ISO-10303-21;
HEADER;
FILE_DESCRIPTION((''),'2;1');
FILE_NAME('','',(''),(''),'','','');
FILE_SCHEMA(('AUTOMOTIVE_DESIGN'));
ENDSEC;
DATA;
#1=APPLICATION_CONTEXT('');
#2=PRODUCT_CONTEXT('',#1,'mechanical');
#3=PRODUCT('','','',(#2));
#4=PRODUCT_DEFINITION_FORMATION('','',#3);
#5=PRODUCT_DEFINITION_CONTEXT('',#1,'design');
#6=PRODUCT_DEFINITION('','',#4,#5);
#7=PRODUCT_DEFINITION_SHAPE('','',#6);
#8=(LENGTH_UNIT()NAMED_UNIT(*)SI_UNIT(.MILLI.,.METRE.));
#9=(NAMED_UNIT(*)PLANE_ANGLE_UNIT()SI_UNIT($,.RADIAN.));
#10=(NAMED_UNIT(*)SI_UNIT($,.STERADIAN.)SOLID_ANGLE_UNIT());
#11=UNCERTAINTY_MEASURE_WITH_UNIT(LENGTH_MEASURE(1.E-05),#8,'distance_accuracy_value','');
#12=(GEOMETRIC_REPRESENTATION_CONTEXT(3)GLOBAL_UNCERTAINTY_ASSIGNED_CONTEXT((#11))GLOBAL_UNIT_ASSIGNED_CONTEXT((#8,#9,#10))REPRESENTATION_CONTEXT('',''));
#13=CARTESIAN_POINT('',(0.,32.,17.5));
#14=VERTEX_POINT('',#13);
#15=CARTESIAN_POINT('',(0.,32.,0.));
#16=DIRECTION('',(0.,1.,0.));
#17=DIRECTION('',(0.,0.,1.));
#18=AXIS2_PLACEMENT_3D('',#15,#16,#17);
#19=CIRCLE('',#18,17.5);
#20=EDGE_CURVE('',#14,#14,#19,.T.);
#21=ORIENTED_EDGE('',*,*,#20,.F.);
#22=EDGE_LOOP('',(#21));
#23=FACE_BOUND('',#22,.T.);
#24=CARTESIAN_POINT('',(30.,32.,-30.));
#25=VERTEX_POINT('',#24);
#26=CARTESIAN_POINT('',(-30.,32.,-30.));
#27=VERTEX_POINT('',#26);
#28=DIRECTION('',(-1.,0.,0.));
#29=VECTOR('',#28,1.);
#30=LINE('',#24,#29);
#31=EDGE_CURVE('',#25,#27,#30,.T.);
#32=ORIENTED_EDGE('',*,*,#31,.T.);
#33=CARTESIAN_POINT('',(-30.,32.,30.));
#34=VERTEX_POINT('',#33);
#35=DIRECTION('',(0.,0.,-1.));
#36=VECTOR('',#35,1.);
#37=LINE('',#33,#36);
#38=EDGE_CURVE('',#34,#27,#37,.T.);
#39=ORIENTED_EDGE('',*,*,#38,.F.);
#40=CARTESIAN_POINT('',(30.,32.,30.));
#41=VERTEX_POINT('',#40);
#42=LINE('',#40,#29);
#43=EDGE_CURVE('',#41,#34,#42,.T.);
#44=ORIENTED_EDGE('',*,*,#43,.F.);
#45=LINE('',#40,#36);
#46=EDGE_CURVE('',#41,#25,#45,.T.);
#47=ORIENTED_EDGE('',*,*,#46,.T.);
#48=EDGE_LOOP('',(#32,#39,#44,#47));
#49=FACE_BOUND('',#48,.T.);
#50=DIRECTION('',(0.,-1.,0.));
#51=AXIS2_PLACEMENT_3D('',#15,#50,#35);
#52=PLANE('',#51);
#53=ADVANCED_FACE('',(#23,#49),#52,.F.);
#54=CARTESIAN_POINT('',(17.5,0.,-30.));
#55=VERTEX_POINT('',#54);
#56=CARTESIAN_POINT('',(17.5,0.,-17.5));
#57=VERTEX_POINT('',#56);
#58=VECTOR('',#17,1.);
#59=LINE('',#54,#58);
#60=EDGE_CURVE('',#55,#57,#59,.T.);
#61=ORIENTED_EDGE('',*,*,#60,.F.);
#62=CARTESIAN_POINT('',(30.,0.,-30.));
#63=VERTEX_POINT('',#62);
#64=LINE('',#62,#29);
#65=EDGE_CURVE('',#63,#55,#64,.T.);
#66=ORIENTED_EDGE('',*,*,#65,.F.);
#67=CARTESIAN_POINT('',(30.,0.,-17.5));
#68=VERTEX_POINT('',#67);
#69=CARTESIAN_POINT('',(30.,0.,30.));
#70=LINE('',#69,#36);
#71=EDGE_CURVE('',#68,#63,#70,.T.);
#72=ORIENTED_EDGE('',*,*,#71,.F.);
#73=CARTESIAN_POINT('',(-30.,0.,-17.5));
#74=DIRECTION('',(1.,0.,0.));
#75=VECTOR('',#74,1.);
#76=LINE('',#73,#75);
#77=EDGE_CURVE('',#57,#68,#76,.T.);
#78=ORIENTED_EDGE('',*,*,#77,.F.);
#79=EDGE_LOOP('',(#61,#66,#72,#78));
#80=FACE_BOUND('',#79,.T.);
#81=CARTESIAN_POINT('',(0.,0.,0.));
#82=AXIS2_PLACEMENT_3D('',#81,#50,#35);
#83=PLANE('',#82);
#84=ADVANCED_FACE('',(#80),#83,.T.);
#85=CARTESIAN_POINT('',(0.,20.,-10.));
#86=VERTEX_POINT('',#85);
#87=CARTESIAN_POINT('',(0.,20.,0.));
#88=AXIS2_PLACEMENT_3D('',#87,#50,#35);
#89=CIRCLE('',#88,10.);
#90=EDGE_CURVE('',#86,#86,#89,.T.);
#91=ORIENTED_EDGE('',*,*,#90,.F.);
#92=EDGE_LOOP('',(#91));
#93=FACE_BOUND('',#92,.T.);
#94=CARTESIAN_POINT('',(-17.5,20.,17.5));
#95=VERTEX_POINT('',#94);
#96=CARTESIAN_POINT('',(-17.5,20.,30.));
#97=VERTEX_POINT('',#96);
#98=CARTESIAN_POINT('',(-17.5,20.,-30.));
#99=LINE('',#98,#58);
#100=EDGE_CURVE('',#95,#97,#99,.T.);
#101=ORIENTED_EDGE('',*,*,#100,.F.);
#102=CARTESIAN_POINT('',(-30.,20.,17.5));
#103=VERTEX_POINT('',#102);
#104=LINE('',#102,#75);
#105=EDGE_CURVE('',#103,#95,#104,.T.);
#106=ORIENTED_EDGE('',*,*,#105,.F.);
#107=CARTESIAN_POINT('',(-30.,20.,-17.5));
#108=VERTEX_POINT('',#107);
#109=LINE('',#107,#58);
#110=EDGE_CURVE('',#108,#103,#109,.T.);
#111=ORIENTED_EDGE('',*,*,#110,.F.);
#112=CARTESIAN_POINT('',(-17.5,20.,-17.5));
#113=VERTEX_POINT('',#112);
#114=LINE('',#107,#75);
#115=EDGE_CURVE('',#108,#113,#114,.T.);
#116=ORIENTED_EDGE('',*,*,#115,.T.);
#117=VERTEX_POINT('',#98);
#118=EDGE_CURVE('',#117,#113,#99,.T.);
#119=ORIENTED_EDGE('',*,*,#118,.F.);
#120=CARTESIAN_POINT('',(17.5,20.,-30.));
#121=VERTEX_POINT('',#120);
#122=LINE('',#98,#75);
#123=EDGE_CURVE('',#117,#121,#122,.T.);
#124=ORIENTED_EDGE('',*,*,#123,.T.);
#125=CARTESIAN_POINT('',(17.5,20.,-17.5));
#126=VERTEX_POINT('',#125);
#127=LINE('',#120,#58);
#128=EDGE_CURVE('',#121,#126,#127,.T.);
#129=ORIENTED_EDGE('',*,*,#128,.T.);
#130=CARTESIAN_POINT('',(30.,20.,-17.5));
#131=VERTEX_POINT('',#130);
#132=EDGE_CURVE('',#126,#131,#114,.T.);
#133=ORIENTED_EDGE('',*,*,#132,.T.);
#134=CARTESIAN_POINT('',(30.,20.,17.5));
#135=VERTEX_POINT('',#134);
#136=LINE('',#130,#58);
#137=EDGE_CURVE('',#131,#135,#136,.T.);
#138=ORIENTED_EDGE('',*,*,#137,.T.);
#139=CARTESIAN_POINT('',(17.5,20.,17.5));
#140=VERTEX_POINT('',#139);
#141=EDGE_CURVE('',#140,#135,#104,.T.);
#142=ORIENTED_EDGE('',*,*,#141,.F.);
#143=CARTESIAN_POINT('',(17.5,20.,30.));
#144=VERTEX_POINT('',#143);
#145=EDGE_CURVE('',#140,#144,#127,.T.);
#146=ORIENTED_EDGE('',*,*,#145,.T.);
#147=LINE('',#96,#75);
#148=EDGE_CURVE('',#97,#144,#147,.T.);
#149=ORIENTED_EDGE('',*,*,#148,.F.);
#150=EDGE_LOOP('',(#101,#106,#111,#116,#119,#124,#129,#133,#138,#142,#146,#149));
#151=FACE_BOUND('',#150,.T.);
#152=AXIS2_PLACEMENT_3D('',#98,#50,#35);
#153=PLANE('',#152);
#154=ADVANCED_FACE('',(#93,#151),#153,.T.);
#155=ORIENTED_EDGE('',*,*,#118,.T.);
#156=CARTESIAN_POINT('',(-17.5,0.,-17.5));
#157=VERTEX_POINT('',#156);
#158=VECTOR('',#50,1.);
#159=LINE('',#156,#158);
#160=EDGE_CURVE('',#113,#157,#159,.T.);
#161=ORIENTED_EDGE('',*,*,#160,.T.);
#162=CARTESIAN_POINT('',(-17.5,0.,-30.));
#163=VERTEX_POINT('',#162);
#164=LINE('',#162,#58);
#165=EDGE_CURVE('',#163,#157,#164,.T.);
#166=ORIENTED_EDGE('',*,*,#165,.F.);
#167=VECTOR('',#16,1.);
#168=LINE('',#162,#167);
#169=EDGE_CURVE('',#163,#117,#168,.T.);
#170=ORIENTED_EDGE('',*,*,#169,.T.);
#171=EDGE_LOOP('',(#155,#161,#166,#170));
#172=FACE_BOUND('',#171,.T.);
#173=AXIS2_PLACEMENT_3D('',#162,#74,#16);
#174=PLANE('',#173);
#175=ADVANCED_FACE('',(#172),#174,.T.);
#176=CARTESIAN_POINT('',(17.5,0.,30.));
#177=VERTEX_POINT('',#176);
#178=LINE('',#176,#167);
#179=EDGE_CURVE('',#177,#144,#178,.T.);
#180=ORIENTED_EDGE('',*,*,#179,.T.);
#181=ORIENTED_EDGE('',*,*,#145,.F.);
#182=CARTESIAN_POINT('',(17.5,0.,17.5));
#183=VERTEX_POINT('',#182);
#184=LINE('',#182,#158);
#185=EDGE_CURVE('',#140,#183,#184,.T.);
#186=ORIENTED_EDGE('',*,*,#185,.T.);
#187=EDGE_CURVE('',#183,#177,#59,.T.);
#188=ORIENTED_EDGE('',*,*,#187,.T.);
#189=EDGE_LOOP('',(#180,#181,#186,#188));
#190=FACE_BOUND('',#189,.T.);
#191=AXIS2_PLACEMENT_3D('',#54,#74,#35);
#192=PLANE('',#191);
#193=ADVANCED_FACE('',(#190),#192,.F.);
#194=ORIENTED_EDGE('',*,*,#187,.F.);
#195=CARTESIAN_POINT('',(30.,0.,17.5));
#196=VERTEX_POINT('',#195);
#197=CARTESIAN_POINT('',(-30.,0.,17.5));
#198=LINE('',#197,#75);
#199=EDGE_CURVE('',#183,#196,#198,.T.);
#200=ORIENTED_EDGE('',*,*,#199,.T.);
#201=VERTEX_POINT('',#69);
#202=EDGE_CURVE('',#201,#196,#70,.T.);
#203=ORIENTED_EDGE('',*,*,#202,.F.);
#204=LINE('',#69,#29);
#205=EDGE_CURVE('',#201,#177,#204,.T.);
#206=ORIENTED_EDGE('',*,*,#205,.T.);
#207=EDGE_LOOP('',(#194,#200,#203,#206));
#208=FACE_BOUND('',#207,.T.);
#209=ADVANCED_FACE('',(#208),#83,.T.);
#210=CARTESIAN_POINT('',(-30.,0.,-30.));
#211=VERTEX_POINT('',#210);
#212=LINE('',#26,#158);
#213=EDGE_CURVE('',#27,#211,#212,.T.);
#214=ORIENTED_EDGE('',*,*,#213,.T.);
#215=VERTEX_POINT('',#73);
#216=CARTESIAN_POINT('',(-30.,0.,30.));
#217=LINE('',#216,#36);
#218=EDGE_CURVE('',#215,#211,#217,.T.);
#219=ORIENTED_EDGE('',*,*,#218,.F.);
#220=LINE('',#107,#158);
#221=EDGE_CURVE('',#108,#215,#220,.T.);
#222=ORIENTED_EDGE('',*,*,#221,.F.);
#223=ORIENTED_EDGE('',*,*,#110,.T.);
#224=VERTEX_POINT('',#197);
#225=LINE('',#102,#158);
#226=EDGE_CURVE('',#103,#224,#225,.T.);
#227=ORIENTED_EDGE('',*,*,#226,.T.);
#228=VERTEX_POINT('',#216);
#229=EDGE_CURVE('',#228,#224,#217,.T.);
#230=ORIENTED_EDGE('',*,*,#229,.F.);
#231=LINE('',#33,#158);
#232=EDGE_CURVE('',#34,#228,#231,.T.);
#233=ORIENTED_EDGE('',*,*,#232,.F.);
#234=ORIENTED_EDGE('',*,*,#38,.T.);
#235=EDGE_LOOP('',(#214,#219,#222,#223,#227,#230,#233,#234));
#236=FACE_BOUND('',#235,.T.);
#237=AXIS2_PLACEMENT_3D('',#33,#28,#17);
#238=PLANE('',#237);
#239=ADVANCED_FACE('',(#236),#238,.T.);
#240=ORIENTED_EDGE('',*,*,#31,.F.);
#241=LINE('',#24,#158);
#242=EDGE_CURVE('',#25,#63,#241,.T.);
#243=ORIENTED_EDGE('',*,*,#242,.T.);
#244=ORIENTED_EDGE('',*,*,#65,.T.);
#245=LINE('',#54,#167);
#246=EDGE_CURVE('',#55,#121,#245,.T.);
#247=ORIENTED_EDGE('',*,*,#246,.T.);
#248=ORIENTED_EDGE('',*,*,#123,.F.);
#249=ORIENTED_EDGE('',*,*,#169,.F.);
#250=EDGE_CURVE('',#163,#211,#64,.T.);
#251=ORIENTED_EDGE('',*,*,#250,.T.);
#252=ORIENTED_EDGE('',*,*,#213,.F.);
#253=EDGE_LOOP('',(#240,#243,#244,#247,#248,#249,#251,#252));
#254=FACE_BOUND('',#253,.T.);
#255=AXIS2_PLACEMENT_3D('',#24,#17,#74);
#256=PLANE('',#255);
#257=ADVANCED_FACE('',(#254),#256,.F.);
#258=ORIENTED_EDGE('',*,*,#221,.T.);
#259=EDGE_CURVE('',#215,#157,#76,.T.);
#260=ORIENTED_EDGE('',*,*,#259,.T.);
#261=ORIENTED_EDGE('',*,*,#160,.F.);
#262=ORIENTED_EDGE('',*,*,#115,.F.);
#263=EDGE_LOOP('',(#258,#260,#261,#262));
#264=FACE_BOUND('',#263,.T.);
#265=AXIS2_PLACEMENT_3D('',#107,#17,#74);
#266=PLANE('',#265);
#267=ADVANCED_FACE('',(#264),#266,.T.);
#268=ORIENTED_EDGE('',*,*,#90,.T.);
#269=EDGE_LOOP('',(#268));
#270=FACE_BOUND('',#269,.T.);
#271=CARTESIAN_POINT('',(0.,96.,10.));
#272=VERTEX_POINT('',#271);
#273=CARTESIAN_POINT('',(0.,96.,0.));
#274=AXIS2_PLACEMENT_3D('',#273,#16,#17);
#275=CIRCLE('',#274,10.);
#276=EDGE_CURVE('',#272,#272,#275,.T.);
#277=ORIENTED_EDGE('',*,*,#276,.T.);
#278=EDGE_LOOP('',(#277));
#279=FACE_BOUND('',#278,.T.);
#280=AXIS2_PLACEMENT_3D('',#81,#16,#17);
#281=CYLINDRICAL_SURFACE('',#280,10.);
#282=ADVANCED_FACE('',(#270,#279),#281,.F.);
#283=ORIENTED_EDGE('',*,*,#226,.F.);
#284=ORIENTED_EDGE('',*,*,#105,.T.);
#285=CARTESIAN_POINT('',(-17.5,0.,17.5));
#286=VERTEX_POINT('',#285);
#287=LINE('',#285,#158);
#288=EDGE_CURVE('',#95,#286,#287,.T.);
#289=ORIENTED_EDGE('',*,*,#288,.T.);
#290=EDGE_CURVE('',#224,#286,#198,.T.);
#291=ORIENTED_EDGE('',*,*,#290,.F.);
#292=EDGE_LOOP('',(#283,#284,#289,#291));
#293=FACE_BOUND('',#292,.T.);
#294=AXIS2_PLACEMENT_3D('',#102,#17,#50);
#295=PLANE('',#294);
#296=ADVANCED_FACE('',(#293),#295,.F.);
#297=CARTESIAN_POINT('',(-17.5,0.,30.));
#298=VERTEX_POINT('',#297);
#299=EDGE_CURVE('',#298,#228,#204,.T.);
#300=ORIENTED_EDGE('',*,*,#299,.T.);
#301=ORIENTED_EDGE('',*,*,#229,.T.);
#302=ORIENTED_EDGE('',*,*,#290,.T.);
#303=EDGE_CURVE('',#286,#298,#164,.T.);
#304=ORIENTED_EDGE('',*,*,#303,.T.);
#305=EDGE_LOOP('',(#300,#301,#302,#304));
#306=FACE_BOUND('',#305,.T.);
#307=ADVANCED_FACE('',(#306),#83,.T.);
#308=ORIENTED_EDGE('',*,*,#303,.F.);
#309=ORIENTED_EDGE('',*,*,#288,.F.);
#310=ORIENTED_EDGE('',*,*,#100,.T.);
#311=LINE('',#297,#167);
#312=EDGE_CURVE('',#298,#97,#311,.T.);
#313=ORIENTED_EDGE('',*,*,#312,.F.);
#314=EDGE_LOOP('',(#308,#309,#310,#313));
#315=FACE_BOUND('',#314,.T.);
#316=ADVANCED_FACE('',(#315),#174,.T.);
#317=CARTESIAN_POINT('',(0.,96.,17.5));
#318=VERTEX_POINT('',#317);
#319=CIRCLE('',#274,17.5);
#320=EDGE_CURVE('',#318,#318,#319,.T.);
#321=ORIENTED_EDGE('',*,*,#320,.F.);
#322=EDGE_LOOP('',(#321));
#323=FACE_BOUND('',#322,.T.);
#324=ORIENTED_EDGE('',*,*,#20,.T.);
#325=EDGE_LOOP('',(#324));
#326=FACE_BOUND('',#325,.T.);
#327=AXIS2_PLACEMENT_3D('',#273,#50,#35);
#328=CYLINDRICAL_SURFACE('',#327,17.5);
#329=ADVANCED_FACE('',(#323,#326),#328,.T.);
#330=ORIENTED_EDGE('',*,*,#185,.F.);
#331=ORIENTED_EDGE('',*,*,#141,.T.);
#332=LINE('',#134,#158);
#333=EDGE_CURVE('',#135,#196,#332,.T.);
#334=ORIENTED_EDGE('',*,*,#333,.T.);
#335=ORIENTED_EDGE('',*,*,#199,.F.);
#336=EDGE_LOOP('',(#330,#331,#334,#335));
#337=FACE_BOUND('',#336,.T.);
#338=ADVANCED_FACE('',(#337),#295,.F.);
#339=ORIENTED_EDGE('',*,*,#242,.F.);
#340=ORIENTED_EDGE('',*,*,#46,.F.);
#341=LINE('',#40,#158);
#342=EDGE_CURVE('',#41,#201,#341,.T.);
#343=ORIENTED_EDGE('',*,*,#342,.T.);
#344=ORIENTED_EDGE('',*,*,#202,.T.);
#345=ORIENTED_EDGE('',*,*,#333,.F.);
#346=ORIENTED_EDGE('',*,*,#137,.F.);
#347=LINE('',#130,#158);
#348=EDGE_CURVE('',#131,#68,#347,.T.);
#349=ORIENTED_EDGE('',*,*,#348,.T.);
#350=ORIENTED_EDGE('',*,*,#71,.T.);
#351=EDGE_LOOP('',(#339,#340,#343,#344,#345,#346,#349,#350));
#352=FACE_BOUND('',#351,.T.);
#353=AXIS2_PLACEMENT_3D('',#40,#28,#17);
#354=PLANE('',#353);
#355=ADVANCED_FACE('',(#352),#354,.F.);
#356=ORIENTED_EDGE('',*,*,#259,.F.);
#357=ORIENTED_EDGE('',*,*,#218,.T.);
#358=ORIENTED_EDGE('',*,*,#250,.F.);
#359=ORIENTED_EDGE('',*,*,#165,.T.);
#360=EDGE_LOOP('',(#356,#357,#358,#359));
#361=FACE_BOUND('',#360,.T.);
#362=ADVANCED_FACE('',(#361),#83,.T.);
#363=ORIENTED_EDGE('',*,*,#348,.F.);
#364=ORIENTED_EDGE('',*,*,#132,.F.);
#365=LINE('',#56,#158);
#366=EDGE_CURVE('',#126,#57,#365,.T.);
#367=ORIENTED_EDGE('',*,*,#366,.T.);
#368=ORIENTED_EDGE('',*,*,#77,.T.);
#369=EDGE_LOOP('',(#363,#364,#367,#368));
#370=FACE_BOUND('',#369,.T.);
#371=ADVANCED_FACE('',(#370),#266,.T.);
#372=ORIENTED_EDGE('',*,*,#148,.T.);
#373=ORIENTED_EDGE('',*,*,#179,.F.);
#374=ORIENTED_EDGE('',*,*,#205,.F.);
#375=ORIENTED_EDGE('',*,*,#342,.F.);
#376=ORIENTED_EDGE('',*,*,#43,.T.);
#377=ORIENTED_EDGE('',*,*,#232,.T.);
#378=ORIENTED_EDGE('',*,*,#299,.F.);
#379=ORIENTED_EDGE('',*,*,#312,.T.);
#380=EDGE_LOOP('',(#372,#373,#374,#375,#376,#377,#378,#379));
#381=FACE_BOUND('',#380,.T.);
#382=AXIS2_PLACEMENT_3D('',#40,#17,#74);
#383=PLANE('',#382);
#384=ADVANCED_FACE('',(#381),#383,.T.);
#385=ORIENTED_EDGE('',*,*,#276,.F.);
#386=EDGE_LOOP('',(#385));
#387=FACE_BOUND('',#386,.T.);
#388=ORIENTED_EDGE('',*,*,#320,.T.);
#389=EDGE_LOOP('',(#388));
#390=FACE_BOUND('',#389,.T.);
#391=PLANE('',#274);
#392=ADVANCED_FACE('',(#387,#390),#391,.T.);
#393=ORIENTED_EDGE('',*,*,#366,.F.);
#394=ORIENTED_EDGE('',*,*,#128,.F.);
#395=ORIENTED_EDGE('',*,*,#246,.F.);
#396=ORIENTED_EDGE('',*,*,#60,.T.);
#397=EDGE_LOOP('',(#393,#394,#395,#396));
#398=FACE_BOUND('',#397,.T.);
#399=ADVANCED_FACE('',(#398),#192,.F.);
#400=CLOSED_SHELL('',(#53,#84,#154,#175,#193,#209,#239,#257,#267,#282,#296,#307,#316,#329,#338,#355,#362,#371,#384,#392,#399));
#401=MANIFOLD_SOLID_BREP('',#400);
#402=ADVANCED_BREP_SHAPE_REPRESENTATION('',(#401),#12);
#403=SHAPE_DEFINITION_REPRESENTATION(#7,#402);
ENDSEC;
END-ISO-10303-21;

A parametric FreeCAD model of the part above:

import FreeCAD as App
import Part
import Sketcher

doc = App.newDocument("Part")
params = doc.addObject("Spreadsheet::Sheet", "Params")
for row, (alias, value) in enumerate([
    ("sketch1_width", "60 mm"),
    ("pad1_length", "32 mm"),
    ("sketch2_width", "35 mm"),
    ("sketch2_height", "20 mm"),
    ("pocket1_length", "60 mm"),
    ("sketch3_width", "20 mm"),
    ("sketch3_height", "35 mm"),
    ("sketch4_diameter", "35 mm"),
    ("pad2_length", "64 mm"),
    ("sketch5_diameter", "20 mm"),
], start=1):
    params.set(f"A{row}", alias)
    params.set(f"B{row}", "=" + value)
    params.setAlias(f"B{row}", alias)

body = doc.addObject("PartDesign::Body", "Body")

# Sketch on XZ plane
sketch1 = body.newObject("Sketcher::SketchObject", "Sketch")
sketch1.AttachmentSupport = (doc.getObject("XZ_Plane"), [""])
sketch1.MapMode = "FlatFace"
sketch1.addGeometry(Part.LineSegment(App.Vector(-30, -30, 0), App.Vector(-30, 30, 0)), False)
sketch1.addGeometry(Part.LineSegment(App.Vector(-30, 30, 0), App.Vector(30, 30, 0)), False)
sketch1.addGeometry(Part.LineSegment(App.Vector(30, 30, 0), App.Vector(30, -30, 0)), False)
sketch1.addGeometry(Part.LineSegment(App.Vector(30, -30, 0), App.Vector(-30, -30, 0)), False)
sketch1.addConstraint(Sketcher.Constraint("Coincident", 0, 2, 1, 1))
sketch1.addConstraint(Sketcher.Constraint("Coincident", 1, 2, 2, 1))
sketch1.addConstraint(Sketcher.Constraint("Coincident", 2, 2, 3, 1))
sketch1.addConstraint(Sketcher.Constraint("Coincident", 3, 2, 0, 1))
sketch1.addConstraint(Sketcher.Constraint("Vertical", 0))
sketch1.addConstraint(Sketcher.Constraint("Horizontal", 1))
sketch1.addConstraint(Sketcher.Constraint("Vertical", 2))
sketch1.addConstraint(Sketcher.Constraint("Horizontal", 3))
sketch1.addConstraint(Sketcher.Constraint("Symmetric", 0, 2, 2, 2, -1, 1))
sketch1.addConstraint(Sketcher.Constraint("Equal", 3, 0))
sketch1.addConstraint(Sketcher.Constraint("DistanceX", 1, 1, 1, 2, 60.0))
sketch1.setExpression("Constraints[10]", "Params.sketch1_width")
pad1 = body.newObject("PartDesign::Pad", "Pad")
pad1.Profile = sketch1
pad1.setExpression("Length", "Params.pad1_length")
pad1.Reversed = True

# Sketch on XY plane
sketch2 = body.newObject("Sketcher::SketchObject", "Sketch001")
sketch2.AttachmentSupport = (doc.getObject("XY_Plane"), [""])
sketch2.MapMode = "FlatFace"
sketch2.AttachmentOffset = App.Placement(App.Vector(0, 0, 30), App.Rotation())
sketch2.addGeometry(Part.LineSegment(App.Vector(-18, 20, 0), App.Vector(-18, 0, 0)), False)
sketch2.addGeometry(Part.LineSegment(App.Vector(-18, 0, 0), App.Vector(18, 0, 0)), False)
sketch2.addGeometry(Part.LineSegment(App.Vector(18, 0, 0), App.Vector(18, 20, 0)), False)
sketch2.addGeometry(Part.LineSegment(App.Vector(18, 20, 0), App.Vector(-18, 20, 0)), False)
sketch2.addConstraint(Sketcher.Constraint("Coincident", 0, 2, 1, 1))
sketch2.addConstraint(Sketcher.Constraint("Coincident", 1, 2, 2, 1))
sketch2.addConstraint(Sketcher.Constraint("Coincident", 2, 2, 3, 1))
sketch2.addConstraint(Sketcher.Constraint("Coincident", 3, 2, 0, 1))
sketch2.addConstraint(Sketcher.Constraint("Vertical", 0))
sketch2.addConstraint(Sketcher.Constraint("Horizontal", 1))
sketch2.addConstraint(Sketcher.Constraint("Vertical", 2))
sketch2.addConstraint(Sketcher.Constraint("Horizontal", 3))
sketch2.addConstraint(Sketcher.Constraint("Symmetric", 0, 2, 1, 2, -1, 1))
sketch2.addConstraint(Sketcher.Constraint("DistanceX", 1, 1, 1, 2, 35.0))
sketch2.addConstraint(Sketcher.Constraint("DistanceY", 0, 2, 0, 1, 20.0))
sketch2.setExpression("Constraints[9]", "Params.sketch2_width")
sketch2.setExpression("Constraints[10]", "Params.sketch2_height")
pocket1 = body.newObject("PartDesign::Pocket", "Pocket")
pocket1.Profile = sketch2
pocket1.setExpression("Length", "Params.pocket1_length")

# Sketch on YZ plane
sketch3 = body.newObject("Sketcher::SketchObject", "Sketch002")
sketch3.AttachmentSupport = (doc.getObject("YZ_Plane"), [""])
sketch3.MapMode = "FlatFace"
sketch3.AttachmentOffset = App.Placement(App.Vector(0, 0, 30), App.Rotation())
sketch3.addGeometry(Part.LineSegment(App.Vector(20, 18, 0), App.Vector(0, 18, 0)), False)
sketch3.addGeometry(Part.LineSegment(App.Vector(0, 18, 0), App.Vector(0, -18, 0)), False)
sketch3.addGeometry(Part.LineSegment(App.Vector(0, -18, 0), App.Vector(20, -18, 0)), False)
sketch3.addGeometry(Part.LineSegment(App.Vector(20, -18, 0), App.Vector(20, 18, 0)), False)
sketch3.addConstraint(Sketcher.Constraint("Coincident", 0, 2, 1, 1))
sketch3.addConstraint(Sketcher.Constraint("Coincident", 1, 2, 2, 1))
sketch3.addConstraint(Sketcher.Constraint("Coincident", 2, 2, 3, 1))
sketch3.addConstraint(Sketcher.Constraint("Coincident", 3, 2, 0, 1))
sketch3.addConstraint(Sketcher.Constraint("Horizontal", 0))
sketch3.addConstraint(Sketcher.Constraint("Vertical", 1))
sketch3.addConstraint(Sketcher.Constraint("Horizontal", 2))
sketch3.addConstraint(Sketcher.Constraint("Vertical", 3))
sketch3.addConstraint(Sketcher.Constraint("Symmetric", 0, 2, 1, 2, -1, 1))
sketch3.addConstraint(Sketcher.Constraint("DistanceX", 0, 2, 0, 1, 20.0))
sketch3.addConstraint(Sketcher.Constraint("DistanceY", 1, 2, 1, 1, 35.0))
sketch3.setExpression("Constraints[9]", "Params.sketch3_width")
sketch3.setExpression("Constraints[10]", "Params.sketch3_height")
pocket2 = body.newObject("PartDesign::Pocket", "Pocket001")
pocket2.Profile = sketch3
pocket2.Type = "ThroughAll"

# Sketch on XZ plane
sketch4 = body.newObject("Sketcher::SketchObject", "Sketch003")
sketch4.AttachmentSupport = (doc.getObject("XZ_Plane"), [""])
sketch4.MapMode = "FlatFace"
sketch4.AttachmentOffset = App.Placement(App.Vector(0, 0, -32), App.Rotation())
sketch4.addGeometry(Part.Circle(App.Vector(0, 0, 0), App.Vector(0, 0, 1), 18), False)
sketch4.addConstraint(Sketcher.Constraint("Coincident", 0, 3, -1, 1))
sketch4.addConstraint(Sketcher.Constraint("Diameter", 0, 35.0))
sketch4.setExpression("Constraints[1]", "Params.sketch4_diameter")
pad2 = body.newObject("PartDesign::Pad", "Pad001")
pad2.Profile = sketch4
pad2.setExpression("Length", "Params.pad2_length")
pad2.Reversed = True

# Sketch on XZ plane
sketch5 = body.newObject("Sketcher::SketchObject", "Sketch004")
sketch5.AttachmentSupport = (doc.getObject("XZ_Plane"), [""])
sketch5.MapMode = "FlatFace"
sketch5.AttachmentOffset = App.Placement(App.Vector(0, 0, -96), App.Rotation())
sketch5.addGeometry(Part.Circle(App.Vector(0, 0, 0), App.Vector(0, 0, 1), 10), False)
sketch5.addConstraint(Sketcher.Constraint("Coincident", 0, 3, -1, 1))
sketch5.addConstraint(Sketcher.Constraint("Diameter", 0, 20.0))
sketch5.setExpression("Constraints[1]", "Params.sketch5_diameter")
pocket3 = body.newObject("PartDesign::Pocket", "Pocket002")
pocket3.Profile = sketch5
pocket3.Type = "ThroughAll"
pocket3.Midplane = True

doc.recompute()
